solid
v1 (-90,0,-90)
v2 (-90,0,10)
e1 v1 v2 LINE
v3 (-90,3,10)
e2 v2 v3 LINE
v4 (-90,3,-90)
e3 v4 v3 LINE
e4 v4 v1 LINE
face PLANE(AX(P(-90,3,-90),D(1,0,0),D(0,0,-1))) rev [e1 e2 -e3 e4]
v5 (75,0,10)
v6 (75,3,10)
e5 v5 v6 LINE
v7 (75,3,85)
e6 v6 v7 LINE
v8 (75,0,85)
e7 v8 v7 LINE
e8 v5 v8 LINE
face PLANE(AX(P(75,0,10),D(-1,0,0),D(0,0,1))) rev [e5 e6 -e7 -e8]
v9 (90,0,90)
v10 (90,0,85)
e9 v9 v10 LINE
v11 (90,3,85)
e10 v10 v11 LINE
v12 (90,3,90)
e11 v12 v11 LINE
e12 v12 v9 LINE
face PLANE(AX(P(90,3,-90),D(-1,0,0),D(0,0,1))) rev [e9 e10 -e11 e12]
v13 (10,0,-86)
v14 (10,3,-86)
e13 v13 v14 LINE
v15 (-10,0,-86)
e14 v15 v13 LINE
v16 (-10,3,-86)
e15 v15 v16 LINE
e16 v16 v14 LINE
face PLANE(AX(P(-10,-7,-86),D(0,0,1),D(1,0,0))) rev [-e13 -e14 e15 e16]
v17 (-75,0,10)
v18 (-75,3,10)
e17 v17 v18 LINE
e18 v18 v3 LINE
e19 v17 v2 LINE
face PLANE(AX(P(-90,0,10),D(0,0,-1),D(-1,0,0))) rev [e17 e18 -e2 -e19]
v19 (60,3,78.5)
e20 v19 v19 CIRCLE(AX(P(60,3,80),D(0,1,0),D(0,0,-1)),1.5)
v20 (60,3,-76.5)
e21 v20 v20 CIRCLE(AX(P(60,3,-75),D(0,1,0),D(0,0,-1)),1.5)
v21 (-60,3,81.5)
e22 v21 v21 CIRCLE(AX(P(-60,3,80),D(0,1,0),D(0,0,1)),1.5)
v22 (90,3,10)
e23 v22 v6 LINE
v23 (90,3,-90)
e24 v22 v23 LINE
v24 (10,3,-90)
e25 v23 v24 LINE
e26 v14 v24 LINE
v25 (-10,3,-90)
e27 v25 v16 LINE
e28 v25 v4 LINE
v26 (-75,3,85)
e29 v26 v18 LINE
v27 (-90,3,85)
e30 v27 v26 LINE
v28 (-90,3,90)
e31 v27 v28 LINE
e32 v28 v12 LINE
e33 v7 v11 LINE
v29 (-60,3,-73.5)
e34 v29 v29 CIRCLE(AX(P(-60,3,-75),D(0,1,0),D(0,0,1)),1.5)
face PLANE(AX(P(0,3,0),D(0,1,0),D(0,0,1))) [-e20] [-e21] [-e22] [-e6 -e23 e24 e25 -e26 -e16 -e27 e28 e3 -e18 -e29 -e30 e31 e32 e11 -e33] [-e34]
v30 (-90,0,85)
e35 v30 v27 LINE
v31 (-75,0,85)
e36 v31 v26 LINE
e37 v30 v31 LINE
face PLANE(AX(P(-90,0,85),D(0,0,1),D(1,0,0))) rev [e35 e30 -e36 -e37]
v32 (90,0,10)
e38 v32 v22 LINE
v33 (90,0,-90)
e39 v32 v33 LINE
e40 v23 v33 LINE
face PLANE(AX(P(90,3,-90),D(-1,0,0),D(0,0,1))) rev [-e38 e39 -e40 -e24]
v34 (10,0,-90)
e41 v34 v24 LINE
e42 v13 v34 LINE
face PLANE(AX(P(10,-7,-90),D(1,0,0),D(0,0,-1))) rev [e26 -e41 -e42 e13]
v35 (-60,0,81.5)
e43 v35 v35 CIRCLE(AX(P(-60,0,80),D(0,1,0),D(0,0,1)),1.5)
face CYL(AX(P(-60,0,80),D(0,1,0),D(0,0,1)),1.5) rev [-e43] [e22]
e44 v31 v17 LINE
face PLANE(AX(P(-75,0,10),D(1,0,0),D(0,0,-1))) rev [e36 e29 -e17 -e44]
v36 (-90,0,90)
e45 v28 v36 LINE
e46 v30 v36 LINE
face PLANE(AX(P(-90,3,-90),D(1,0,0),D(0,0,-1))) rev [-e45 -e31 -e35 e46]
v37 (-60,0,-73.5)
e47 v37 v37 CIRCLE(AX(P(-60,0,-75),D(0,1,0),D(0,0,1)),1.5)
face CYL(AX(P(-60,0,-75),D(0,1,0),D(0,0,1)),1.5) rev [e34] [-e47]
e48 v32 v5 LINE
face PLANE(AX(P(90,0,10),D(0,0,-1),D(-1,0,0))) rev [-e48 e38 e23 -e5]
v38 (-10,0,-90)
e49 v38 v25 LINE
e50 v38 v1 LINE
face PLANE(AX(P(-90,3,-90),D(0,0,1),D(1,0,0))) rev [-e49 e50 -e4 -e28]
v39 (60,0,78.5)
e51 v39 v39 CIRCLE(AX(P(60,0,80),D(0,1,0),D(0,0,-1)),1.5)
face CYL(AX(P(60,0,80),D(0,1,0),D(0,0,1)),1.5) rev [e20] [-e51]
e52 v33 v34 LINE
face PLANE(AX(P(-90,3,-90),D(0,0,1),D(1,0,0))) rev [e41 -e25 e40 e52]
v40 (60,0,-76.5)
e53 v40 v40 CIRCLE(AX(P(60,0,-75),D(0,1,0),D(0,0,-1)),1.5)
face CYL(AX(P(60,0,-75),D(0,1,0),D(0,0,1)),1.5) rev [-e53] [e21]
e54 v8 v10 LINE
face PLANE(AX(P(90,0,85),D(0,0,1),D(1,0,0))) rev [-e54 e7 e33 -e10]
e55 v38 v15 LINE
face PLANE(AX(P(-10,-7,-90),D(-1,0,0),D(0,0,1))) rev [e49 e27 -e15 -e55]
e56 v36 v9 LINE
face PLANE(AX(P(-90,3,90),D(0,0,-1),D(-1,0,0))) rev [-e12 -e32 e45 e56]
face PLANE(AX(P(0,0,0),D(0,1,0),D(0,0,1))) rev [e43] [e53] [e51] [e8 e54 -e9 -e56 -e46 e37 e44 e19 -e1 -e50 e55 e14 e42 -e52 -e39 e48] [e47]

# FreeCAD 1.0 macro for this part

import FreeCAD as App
import Part
import Sketcher

doc = App.newDocument("Part")
params = doc.addObject("Spreadsheet::Sheet", "Params")
for row, (alias, value) in enumerate([
    ("sketch1_width", "180 mm"),
    ("pad1_length", "3 mm"),
    ("sketch2_width", "15 mm"),
    ("sketch2_height", "75 mm"),
    ("pocket1_length", "3 mm"),
    ("sketch3_diameter", "3 mm"),
    ("pocket2_length", "3 mm"),
    ("sketch4_width", "20 mm"),
    ("sketch4_height", "4 mm"),
    ("pocket3_length", "10 mm"),
], start=1):
    params.set(f"A{row}", alias)
    params.set(f"B{row}", "=" + value)
    params.setAlias(f"B{row}", alias)

body = doc.addObject("PartDesign::Body", "Body")

# Sketch on XZ plane
sketch1 = body.newObject("Sketcher::SketchObject", "Sketch")
sketch1.AttachmentSupport = (doc.getObject("XZ_Plane"), [""])
sketch1.MapMode = "FlatFace"
sketch1.addGeometry(Part.LineSegment(App.Vector(-90, -90, 0), App.Vector(-90, 90, 0)), False)
sketch1.addGeometry(Part.LineSegment(App.Vector(-90, 90, 0), App.Vector(90, 90, 0)), False)
sketch1.addGeometry(Part.LineSegment(App.Vector(90, 90, 0), App.Vector(90, -90, 0)), False)
sketch1.addGeometry(Part.LineSegment(App.Vector(90, -90, 0), App.Vector(-90, -90, 0)), False)
sketch1.addConstraint(Sketcher.Constraint("Coincident", 0, 2, 1, 1))
sketch1.addConstraint(Sketcher.Constraint("Coincident", 1, 2, 2, 1))
sketch1.addConstraint(Sketcher.Constraint("Coincident", 2, 2, 3, 1))
sketch1.addConstraint(Sketcher.Constraint("Coincident", 3, 2, 0, 1))
sketch1.addConstraint(Sketcher.Constraint("Vertical", 0))
sketch1.addConstraint(Sketcher.Constraint("Horizontal", 1))
sketch1.addConstraint(Sketcher.Constraint("Vertical", 2))
sketch1.addConstraint(Sketcher.Constraint("Horizontal", 3))
sketch1.addConstraint(Sketcher.Constraint("Symmetric", 0, 2, 2, 2, -1, 1))
sketch1.addConstraint(Sketcher.Constraint("Equal", 3, 0))
sketch1.addConstraint(Sketcher.Constraint("DistanceX", 1, 1, 1, 2, 180.0))
sketch1.setExpression("Constraints[10]", "Params.sketch1_width")
pad1 = body.newObject("PartDesign::Pad", "Pad")
pad1.Profile = sketch1
pad1.setExpression("Length", "Params.pad1_length")
pad1.Reversed = True

# Sketch on XZ plane
sketch2 = body.newObject("Sketcher::SketchObject", "Sketch001")
sketch2.AttachmentSupport = (doc.getObject("XZ_Plane"), [""])
sketch2.MapMode = "FlatFace"
sketch2.AttachmentOffset = App.Placement(App.Vector(0, 0, -3), App.Rotation())
sketch2.addGeometry(Part.LineSegment(App.Vector(-90, 10, 0), App.Vector(-90, 85, 0)), False)
sketch2.addGeometry(Part.LineSegment(App.Vector(-90, 85, 0), App.Vector(-75, 85, 0)), False)
sketch2.addGeometry(Part.LineSegment(App.Vector(-75, 85, 0), App.Vector(-75, 10, 0)), False)
sketch2.addGeometry(Part.LineSegment(App.Vector(-75, 10, 0), App.Vector(-90, 10, 0)), False)
sketch2.addGeometry(Part.LineSegment(App.Vector(75, 10, 0), App.Vector(75, 85, 0)), False)
sketch2.addGeometry(Part.LineSegment(App.Vector(75, 85, 0), App.Vector(90, 85, 0)), False)
sketch2.addGeometry(Part.LineSegment(App.Vector(90, 85, 0), App.Vector(90, 10, 0)), False)
sketch2.addGeometry(Part.LineSegment(App.Vector(90, 10, 0), App.Vector(75, 10, 0)), False)
sketch2.addConstraint(Sketcher.Constraint("Coincident", 0, 2, 1, 1))
sketch2.addConstraint(Sketcher.Constraint("Coincident", 1, 2, 2, 1))
sketch2.addConstraint(Sketcher.Constraint("Coincident", 2, 2, 3, 1))
sketch2.addConstraint(Sketcher.Constraint("Coincident", 3, 2, 0, 1))
sketch2.addConstraint(Sketcher.Constraint("Coincident", 4, 2, 5, 1))
sketch2.addConstraint(Sketcher.Constraint("Coincident", 5, 2, 6, 1))
sketch2.addConstraint(Sketcher.Constraint("Coincident", 6, 2, 7, 1))
sketch2.addConstraint(Sketcher.Constraint("Coincident", 7, 2, 4, 1))
sketch2.addConstraint(Sketcher.Constraint("Vertical", 0))
sketch2.addConstraint(Sketcher.Constraint("Horizontal", 1))
sketch2.addConstraint(Sketcher.Constraint("Vertical", 2))
sketch2.addConstraint(Sketcher.Constraint("Horizontal", 3))
sketch2.addConstraint(Sketcher.Constraint("Vertical", 4))
sketch2.addConstraint(Sketcher.Constraint("Horizontal", 5))
sketch2.addConstraint(Sketcher.Constraint("Vertical", 6))
sketch2.addConstraint(Sketcher.Constraint("Horizontal", 7))
sketch2.addConstraint(Sketcher.Constraint("Symmetric", 1, 2, 4, 2, -2))
sketch2.addConstraint(Sketcher.Constraint("Symmetric", 3, 2, 6, 2, -2))
sketch2.addConstraint(Sketcher.Constraint("DistanceX", 1, 1, 1, 2, 15.0))
sketch2.addConstraint(Sketcher.Constraint("DistanceY", 0, 1, 0, 2, 75.0))
sketch2.addConstraint(Sketcher.Constraint("DistanceX", 0, 2, -1, 1, 90.0))
sketch2.addConstraint(Sketcher.Constraint("DistanceY", -1, 1, 0, 2, 85.0))
sketch2.setExpression("Constraints[18]", "Params.sketch2_width")
sketch2.setExpression("Constraints[19]", "Params.sketch2_height")
pocket1 = body.newObject("PartDesign::Pocket", "Pocket")
pocket1.Profile = sketch2
pocket1.setExpression("Length", "Params.pocket1_length")
pocket1.Reversed = True

# Sketch on XZ plane
sketch3 = body.newObject("Sketcher::SketchObject", "Sketch002")
sketch3.AttachmentSupport = (doc.getObject("XZ_Plane"), [""])
sketch3.MapMode = "FlatFace"
sketch3.AttachmentOffset = App.Placement(App.Vector(0, 0, -3), App.Rotation())
sketch3.addGeometry(Part.Circle(App.Vector(-60, 80, 0), App.Vector(0, 0, 1), 1.5), False)
sketch3.addGeometry(Part.Circle(App.Vector(60, 80, 0), App.Vector(0, 0, 1), 1.5), False)
sketch3.addGeometry(Part.Circle(App.Vector(-60, -75, 0), App.Vector(0, 0, 1), 1.5), False)
sketch3.addGeometry(Part.Circle(App.Vector(60, -75, 0), App.Vector(0, 0, 1), 1.5), False)
sketch3.addConstraint(Sketcher.Constraint("Equal", 0, 1))
sketch3.addConstraint(Sketcher.Constraint("Equal", 1, 2))
sketch3.addConstraint(Sketcher.Constraint("Equal", 2, 3))
sketch3.addConstraint(Sketcher.Constraint("Symmetric", 0, 3, 1, 3, -2))
sketch3.addConstraint(Sketcher.Constraint("Symmetric", 2, 3, 3, 3, -2))
sketch3.addConstraint(Sketcher.Constraint("Vertical", 0, 3, 2, 3))
sketch3.addConstraint(Sketcher.Constraint("Diameter", 0, 3.0))
sketch3.addConstraint(Sketcher.Constraint("DistanceX", 0, 3, -1, 1, 60.0))
sketch3.addConstraint(Sketcher.Constraint("DistanceY", -1, 1, 0, 3, 80.0))
sketch3.addConstraint(Sketcher.Constraint("DistanceY", 2, 3, -1, 1, 75.0))
sketch3.setExpression("Constraints[6]", "Params.sketch3_diameter")
pocket2 = body.newObject("PartDesign::Pocket", "Pocket001")
pocket2.Profile = sketch3
pocket2.setExpression("Length", "Params.pocket2_length")
pocket2.Reversed = True

# Sketch on XZ plane
sketch4 = body.newObject("Sketcher::SketchObject", "Sketch003")
sketch4.AttachmentSupport = (doc.getObject("XZ_Plane"), [""])
sketch4.MapMode = "FlatFace"
sketch4.AttachmentOffset = App.Placement(App.Vector(0, 0, -3), App.Rotation())
sketch4.addGeometry(Part.LineSegment(App.Vector(-10, -90, 0), App.Vector(-10, -86, 0)), False)
sketch4.addGeometry(Part.LineSegment(App.Vector(-10, -86, 0), App.Vector(10, -86, 0)), False)
sketch4.addGeometry(Part.LineSegment(App.Vector(10, -86, 0), App.Vector(10, -90, 0)), False)
sketch4.addGeometry(Part.LineSegment(App.Vector(10, -90, 0), App.Vector(-10, -90, 0)), False)
sketch4.addConstraint(Sketcher.Constraint("Coincident", 0, 2, 1, 1))
sketch4.addConstraint(Sketcher.Constraint("Coincident", 1, 2, 2, 1))
sketch4.addConstraint(Sketcher.Constraint("Coincident", 2, 2, 3, 1))
sketch4.addConstraint(Sketcher.Constraint("Coincident", 3, 2, 0, 1))
sketch4.addConstraint(Sketcher.Constraint("Vertical", 0))
sketch4.addConstraint(Sketcher.Constraint("Horizontal", 1))
sketch4.addConstraint(Sketcher.Constraint("Vertical", 2))
sketch4.addConstraint(Sketcher.Constraint("Horizontal", 3))
sketch4.addConstraint(Sketcher.Constraint("DistanceX", 1, 1, 1, 2, 20.0))
sketch4.addConstraint(Sketcher.Constraint("DistanceY", 0, 1, 0, 2, 4.0))
sketch4.addConstraint(Sketcher.Constraint("DistanceX", 0, 2, -1, 1, 10.0))
sketch4.addConstraint(Sketcher.Constraint("DistanceY", 0, 2, -1, 1, 86.0))
sketch4.setExpression("Constraints[8]", "Params.sketch4_width")
sketch4.setExpression("Constraints[9]", "Params.sketch4_height")
pocket3 = body.newObject("PartDesign::Pocket", "Pocket002")
pocket3.Profile = sketch4
pocket3.setExpression("Length", "Params.pocket3_length")
pocket3.Reversed = True

doc.recompute()
